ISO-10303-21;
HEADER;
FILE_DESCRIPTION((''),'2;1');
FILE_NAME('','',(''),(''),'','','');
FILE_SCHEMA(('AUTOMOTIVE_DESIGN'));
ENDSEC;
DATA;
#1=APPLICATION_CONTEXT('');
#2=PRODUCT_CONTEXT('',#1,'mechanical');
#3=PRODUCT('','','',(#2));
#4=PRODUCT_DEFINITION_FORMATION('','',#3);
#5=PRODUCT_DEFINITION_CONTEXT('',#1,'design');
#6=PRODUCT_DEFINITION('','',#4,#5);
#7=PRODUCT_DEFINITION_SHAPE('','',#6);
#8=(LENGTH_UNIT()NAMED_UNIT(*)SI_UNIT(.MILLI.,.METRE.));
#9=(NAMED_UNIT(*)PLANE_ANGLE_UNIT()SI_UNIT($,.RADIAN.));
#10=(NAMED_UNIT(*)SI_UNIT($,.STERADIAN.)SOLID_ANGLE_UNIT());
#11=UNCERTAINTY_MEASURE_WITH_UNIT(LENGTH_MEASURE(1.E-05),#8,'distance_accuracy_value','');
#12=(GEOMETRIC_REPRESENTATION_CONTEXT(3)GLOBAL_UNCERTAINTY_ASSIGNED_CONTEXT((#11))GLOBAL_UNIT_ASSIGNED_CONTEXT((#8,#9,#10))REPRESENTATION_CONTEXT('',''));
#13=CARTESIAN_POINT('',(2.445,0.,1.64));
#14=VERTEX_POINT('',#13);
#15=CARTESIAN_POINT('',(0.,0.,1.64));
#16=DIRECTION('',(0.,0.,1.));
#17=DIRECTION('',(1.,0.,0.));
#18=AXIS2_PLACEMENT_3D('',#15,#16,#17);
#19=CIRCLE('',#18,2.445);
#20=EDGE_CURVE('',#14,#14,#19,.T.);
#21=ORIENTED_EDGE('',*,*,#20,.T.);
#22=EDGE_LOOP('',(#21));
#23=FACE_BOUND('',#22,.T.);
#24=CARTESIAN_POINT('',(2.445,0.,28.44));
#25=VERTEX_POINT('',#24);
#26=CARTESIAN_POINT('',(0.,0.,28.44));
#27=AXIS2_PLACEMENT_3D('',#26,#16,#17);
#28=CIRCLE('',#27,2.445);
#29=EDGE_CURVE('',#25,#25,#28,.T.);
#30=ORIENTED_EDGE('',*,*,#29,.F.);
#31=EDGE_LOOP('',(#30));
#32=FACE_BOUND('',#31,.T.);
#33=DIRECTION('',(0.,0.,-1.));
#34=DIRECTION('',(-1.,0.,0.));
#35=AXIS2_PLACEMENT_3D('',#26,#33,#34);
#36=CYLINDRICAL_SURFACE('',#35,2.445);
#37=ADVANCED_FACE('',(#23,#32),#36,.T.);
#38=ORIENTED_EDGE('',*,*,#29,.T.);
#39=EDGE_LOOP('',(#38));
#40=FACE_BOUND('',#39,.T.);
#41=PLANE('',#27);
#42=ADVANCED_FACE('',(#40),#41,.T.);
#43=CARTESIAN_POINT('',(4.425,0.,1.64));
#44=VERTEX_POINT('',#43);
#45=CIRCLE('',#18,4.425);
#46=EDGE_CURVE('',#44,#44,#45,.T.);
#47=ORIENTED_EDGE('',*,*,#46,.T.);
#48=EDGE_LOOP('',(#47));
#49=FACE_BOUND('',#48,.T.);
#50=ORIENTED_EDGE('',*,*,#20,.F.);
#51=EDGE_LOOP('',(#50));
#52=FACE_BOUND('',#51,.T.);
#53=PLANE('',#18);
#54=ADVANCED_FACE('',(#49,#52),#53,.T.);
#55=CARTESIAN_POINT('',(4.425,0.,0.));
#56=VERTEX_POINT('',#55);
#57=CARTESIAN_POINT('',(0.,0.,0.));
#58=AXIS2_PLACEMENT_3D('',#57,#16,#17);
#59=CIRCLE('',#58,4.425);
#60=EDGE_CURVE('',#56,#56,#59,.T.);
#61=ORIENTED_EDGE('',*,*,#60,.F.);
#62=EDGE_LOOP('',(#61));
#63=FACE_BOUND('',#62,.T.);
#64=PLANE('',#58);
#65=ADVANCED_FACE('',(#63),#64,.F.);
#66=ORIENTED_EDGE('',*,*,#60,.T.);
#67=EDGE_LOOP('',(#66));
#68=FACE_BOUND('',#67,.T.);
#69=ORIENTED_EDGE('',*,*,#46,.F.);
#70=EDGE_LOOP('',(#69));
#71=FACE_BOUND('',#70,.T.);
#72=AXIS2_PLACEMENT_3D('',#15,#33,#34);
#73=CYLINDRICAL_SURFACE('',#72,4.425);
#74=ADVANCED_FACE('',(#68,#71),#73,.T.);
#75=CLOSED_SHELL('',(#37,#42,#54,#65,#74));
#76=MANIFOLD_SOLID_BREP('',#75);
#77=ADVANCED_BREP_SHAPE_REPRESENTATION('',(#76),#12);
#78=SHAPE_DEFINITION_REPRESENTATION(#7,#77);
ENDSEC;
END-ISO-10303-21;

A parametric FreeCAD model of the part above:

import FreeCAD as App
import Part
import Sketcher

V = App.Vector
Q = App.Units.Quantity

doc = App.newDocument("Part")
params = doc.addObject("Spreadsheet::Sheet", "Params")
for row, (alias, value) in enumerate([
    ("sketch1_diameter", "8.85 mm"),
    ("pad1_length", "1.64 mm"),
    ("sketch2_diameter", "4.89 mm"),
    ("pad2_length", "26.8 mm"),
], start=1):
    params.set(f"A{row}", alias)
    params.set(f"B{row}", "=" + value)
    params.setAlias(f"B{row}", alias)

body = doc.addObject("PartDesign::Body", "Body")

# Sketch on XY plane
sketch1 = body.newObject("Sketcher::SketchObject", "Sketch")
sketch1.AttachmentSupport = (doc.getObject("XY_Plane"), [""])
sketch1.MapMode = "FlatFace"
sketch1.addGeometry(Part.Circle(V(0, 0, 0), V(0, 0, 1), 4.4), False)
sketch1.addConstraint([
    Sketcher.Constraint("Coincident", 0, 3, -1, 1),
    Sketcher.Constraint("Diameter", 0, Q("8.85 mm")),
])
sketch1.setExpression("Constraints[1]", "Params.sketch1_diameter")
pad1 = body.newObject("PartDesign::Pad", "Pad")
pad1.Profile = sketch1
pad1.setExpression("Length", "Params.pad1_length")

# Sketch on XY plane
sketch2 = body.newObject("Sketcher::SketchObject", "Sketch001")
sketch2.AttachmentSupport = (doc.getObject("XY_Plane"), [""])
sketch2.MapMode = "FlatFace"
sketch2.AttachmentOffset = App.Placement(V(0, 0, 1.64), App.Rotation())
sketch2.addGeometry(Part.Circle(V(0, 0, 0), V(0, 0, 1), 2.4), False)
sketch2.addConstraint([
    Sketcher.Constraint("Coincident", 0, 3, -1, 1),
    Sketcher.Constraint("Diameter", 0, Q("4.89 mm")),
])
sketch2.setExpression("Constraints[1]", "Params.sketch2_diameter")
pad2 = body.newObject("PartDesign::Pad", "Pad001")
pad2.Profile = sketch2
pad2.setExpression("Length", "Params.pad2_length")

doc.recompute()
